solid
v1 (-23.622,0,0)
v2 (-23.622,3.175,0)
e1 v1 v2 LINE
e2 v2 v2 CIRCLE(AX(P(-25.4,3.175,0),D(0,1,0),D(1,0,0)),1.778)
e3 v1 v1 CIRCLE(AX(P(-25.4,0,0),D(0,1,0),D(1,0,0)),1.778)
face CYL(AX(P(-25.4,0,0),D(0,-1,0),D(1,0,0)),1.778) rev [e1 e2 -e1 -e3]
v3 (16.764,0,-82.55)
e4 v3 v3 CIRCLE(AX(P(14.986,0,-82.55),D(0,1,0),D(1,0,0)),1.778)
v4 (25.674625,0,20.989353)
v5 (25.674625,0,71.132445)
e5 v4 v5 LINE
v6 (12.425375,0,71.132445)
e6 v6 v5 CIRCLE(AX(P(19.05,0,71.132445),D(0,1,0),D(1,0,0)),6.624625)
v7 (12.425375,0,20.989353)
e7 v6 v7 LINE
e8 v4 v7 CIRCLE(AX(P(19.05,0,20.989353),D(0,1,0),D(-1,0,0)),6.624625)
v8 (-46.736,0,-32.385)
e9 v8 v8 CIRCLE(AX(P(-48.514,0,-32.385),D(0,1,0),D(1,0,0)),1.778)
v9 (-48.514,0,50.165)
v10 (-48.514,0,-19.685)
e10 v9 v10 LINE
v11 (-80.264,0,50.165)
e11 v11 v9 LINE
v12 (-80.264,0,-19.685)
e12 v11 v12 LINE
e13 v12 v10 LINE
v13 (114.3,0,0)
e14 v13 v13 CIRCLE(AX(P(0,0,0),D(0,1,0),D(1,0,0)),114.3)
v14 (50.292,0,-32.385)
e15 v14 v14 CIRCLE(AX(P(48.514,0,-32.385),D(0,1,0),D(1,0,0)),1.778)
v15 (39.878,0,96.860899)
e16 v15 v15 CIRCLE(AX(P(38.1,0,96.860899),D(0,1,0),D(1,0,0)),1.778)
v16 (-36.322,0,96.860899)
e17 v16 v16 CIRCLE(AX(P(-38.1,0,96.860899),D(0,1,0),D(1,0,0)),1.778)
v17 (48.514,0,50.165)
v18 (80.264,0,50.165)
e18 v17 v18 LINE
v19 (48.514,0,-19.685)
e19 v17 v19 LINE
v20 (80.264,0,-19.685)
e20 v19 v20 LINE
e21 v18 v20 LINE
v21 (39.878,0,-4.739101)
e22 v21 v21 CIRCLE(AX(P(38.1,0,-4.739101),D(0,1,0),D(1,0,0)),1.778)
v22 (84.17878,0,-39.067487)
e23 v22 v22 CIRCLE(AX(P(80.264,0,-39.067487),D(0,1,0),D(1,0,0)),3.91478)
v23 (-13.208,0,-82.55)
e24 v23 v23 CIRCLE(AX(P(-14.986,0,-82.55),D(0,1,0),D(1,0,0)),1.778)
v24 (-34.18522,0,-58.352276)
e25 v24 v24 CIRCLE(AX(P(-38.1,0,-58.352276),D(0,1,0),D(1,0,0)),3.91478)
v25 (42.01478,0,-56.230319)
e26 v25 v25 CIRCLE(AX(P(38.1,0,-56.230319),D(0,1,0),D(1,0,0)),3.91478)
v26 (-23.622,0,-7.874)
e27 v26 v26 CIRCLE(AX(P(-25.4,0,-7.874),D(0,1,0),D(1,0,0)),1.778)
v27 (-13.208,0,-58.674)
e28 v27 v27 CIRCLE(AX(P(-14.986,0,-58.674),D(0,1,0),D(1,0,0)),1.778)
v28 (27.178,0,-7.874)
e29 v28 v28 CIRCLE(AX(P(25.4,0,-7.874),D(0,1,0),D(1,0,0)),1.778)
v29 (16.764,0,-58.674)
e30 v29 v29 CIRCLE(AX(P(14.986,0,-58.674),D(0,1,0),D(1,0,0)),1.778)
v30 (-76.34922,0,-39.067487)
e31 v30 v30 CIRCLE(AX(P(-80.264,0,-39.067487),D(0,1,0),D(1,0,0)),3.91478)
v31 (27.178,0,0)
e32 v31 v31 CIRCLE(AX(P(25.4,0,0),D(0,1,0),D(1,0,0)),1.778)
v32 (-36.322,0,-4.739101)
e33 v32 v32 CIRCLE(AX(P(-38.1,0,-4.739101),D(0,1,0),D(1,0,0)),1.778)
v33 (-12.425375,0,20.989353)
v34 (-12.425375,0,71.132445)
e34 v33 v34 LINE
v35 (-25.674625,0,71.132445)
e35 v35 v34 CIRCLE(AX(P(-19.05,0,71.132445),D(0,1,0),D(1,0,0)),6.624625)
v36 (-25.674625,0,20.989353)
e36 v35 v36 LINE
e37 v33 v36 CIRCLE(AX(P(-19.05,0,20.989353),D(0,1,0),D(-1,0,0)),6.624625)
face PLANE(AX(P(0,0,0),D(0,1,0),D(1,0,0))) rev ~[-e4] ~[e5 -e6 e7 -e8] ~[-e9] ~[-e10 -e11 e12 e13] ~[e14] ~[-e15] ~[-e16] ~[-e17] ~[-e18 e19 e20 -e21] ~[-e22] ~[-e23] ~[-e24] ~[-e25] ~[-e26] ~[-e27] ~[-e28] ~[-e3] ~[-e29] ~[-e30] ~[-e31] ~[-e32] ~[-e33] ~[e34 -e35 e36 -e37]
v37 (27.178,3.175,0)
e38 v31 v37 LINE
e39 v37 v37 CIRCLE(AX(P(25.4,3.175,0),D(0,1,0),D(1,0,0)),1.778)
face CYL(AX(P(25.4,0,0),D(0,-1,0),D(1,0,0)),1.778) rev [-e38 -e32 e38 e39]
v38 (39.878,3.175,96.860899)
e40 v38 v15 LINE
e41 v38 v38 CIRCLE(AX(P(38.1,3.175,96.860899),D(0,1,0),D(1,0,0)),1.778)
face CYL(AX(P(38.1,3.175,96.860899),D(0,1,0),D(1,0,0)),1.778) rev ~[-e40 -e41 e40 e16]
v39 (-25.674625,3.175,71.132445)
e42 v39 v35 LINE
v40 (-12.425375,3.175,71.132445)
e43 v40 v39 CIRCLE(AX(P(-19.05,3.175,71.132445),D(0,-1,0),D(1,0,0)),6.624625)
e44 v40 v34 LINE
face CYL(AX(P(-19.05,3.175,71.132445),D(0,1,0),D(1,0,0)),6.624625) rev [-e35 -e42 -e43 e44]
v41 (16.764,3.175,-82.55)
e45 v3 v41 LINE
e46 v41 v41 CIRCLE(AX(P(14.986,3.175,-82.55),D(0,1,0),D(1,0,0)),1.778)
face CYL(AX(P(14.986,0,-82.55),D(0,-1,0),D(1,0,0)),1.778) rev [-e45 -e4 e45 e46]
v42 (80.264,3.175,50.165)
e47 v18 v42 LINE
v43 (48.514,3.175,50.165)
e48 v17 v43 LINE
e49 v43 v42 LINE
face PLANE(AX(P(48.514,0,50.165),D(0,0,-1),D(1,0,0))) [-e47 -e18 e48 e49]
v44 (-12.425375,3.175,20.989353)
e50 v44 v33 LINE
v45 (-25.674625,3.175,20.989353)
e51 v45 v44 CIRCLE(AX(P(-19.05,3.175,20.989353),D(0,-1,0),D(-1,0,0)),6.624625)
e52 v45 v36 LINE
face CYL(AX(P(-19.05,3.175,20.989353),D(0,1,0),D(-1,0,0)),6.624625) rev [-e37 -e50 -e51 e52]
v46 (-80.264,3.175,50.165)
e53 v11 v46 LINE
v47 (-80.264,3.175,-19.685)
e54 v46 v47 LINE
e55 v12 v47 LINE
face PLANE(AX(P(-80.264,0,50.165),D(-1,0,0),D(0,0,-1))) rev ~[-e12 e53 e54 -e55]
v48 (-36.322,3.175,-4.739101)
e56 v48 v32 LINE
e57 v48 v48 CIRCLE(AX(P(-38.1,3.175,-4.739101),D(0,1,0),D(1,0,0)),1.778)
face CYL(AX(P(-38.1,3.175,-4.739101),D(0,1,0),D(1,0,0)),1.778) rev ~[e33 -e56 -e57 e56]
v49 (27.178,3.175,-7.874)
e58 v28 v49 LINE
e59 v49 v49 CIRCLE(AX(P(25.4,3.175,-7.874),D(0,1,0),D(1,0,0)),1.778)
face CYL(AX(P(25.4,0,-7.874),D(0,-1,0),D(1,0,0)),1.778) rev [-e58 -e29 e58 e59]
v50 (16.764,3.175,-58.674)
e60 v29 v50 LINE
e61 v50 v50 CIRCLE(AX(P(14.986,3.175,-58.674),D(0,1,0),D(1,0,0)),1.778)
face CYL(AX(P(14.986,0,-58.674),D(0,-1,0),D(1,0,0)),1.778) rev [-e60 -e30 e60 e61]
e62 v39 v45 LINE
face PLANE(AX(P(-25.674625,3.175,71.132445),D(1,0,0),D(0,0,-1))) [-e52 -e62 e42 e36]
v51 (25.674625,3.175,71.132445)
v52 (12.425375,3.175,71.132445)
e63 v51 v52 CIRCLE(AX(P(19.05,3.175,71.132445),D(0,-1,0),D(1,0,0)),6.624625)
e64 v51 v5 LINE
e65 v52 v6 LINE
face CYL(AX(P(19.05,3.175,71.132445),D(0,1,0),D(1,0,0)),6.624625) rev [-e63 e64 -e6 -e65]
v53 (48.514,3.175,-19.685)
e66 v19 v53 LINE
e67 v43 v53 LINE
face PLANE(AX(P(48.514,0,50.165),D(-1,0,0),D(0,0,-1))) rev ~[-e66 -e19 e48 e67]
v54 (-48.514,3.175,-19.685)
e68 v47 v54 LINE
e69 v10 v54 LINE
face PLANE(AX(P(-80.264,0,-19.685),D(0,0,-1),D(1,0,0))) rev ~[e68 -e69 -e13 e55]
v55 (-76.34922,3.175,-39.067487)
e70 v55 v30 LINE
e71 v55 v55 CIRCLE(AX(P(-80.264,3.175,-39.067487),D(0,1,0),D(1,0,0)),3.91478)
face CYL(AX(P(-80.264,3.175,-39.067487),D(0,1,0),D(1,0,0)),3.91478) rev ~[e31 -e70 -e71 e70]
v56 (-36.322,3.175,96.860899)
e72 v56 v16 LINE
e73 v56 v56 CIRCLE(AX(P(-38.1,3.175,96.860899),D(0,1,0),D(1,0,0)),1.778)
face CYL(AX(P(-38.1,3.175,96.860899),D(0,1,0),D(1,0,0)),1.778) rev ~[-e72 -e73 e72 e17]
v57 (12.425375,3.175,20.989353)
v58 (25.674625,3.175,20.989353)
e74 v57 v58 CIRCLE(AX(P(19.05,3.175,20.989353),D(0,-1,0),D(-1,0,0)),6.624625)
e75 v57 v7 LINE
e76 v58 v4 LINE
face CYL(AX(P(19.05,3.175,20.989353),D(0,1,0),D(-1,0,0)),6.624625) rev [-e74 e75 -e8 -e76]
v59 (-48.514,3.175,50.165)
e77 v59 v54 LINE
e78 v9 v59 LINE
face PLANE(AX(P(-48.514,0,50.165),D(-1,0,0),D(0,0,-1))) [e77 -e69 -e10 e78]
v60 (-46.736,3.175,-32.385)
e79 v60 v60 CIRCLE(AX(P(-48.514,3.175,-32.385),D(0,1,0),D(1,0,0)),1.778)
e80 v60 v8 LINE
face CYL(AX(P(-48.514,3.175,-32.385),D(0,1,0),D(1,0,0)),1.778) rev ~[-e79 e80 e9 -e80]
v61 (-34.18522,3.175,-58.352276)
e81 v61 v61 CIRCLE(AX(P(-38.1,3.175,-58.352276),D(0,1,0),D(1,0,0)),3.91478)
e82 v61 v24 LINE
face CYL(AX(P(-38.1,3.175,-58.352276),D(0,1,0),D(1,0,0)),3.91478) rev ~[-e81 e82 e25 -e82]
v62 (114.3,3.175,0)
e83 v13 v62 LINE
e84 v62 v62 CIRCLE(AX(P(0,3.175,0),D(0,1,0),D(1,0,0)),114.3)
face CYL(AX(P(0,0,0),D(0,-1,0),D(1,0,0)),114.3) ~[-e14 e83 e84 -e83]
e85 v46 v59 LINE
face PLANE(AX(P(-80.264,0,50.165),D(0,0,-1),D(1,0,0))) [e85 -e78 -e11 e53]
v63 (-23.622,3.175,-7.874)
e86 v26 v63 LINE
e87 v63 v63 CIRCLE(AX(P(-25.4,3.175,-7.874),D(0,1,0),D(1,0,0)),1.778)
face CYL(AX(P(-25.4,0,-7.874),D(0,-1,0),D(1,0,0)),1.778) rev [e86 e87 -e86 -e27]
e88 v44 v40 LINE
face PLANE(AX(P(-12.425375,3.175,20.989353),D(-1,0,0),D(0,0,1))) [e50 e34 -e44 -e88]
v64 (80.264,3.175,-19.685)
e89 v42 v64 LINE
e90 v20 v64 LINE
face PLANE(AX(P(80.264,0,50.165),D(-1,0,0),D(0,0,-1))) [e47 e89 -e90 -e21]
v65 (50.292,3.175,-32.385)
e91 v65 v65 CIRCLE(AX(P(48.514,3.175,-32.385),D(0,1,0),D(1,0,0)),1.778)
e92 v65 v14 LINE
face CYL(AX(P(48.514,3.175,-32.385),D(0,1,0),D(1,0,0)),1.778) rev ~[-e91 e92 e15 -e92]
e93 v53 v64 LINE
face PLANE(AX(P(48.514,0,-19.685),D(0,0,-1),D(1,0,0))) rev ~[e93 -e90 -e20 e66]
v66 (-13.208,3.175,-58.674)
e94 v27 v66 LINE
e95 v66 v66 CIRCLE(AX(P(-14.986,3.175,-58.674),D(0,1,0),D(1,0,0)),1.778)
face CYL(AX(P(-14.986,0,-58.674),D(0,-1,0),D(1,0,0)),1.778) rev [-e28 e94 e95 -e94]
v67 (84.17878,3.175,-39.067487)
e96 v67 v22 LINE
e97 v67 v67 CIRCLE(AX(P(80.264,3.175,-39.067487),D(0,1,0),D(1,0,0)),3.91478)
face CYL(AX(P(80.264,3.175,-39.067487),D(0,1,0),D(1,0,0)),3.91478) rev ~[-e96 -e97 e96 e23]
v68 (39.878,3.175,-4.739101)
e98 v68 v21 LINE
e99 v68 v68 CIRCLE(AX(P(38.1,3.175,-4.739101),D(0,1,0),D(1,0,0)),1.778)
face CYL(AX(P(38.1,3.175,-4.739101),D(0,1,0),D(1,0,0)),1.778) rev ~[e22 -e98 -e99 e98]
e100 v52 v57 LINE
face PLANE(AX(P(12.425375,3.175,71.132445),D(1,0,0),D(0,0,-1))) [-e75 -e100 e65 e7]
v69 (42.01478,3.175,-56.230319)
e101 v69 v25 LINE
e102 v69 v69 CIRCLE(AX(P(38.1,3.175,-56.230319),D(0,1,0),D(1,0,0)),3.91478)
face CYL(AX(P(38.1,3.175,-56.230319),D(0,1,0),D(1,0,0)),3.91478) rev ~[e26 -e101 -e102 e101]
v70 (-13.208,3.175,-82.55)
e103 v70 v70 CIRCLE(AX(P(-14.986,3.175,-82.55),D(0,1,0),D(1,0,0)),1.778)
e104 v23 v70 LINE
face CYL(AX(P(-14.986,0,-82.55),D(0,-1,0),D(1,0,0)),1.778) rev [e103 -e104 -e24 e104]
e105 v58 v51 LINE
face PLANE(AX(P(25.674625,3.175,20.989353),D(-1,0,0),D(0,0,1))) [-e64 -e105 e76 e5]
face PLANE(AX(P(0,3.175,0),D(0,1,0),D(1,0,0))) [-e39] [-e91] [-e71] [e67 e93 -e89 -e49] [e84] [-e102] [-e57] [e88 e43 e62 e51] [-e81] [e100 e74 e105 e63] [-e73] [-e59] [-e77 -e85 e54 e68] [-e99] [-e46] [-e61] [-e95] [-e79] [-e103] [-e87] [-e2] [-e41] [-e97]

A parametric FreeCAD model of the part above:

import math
import FreeCAD as App
import Part
import Sketcher
Q = App.Units.Quantity


def add_polygon(sketch, points):
    """Adds a closed chain of lines whose ends are joined by coincident constraints."""
    first, n = sketch.GeometryCount, len(points)
    for a, b in zip(points, points[1:] + points[:1]):
        sketch.addGeometry(Part.LineSegment(App.Vector(*a, 0), App.Vector(*b, 0)), False)
    for i in range(n):
        sketch.addConstraint(Sketcher.Constraint("Coincident", first + i, 2, first + (i + 1) % n, 1))

doc = App.newDocument("Part")
params = doc.addObject("Spreadsheet::Sheet", "Params")
for row, (alias, value) in enumerate([
    ("sketch1_diameter", "9 in"),
    ("sketch1_diameter2", "0.14 in"),
    ("sketch1_width", "1.25 in"),
    ("sketch1_height", "2.75 in"),
    ("pad1_length", "0.125 in"),
    ("sketch2_diameter", "0.14 in"),
    ("pocket1_length", "1 in"),
], start=1):
    params.set(f"A{row}", alias)
    params.set(f"B{row}", "=" + value)
    params.setAlias(f"B{row}", alias)

body = doc.addObject("PartDesign::Body", "Body")

sketch1 = body.newObject("Sketcher::SketchObject", "Sketch")
sketch1.AttachmentSupport = (doc.getObject("XZ_Plane"), [""])
sketch1.MapMode = "FlatFace"
sketch1.addGeometry(Part.Circle(App.Vector(0, 0, 0), App.Vector(0, 0, 1), 114.3), False)
add_polygon(sketch1, [(-48.5, 50.2), (-80.3, 50.2), (-80.3, -19.7), (-48.5, -19.7)])
sketch1.addGeometry(Part.Circle(App.Vector(-25.4, 0, 0), App.Vector(0, 0, 1), 1.8), False)
sketch1.addGeometry(Part.Circle(App.Vector(-25.4, -7.9, 0), App.Vector(0, 0, 1), 1.8), False)
sketch1.addGeometry(Part.Circle(App.Vector(25.4, 0, 0), App.Vector(0, 0, 1), 1.8), False)
sketch1.addGeometry(Part.Circle(App.Vector(25.4, -7.9, 0), App.Vector(0, 0, 1), 1.8), False)
add_polygon(sketch1, [(80.3, 50.2), (48.5, 50.2), (48.5, -19.7), (80.3, -19.7)])
sketch1.addGeometry(Part.Circle(App.Vector(-15, -58.7, 0), App.Vector(0, 0, 1), 1.8), False)
sketch1.addGeometry(Part.Circle(App.Vector(-15, -82.5, 0), App.Vector(0, 0, 1), 1.8), False)
sketch1.addGeometry(Part.Circle(App.Vector(15, -58.7, 0), App.Vector(0, 0, 1), 1.8), False)
sketch1.addGeometry(Part.Circle(App.Vector(15, -82.5, 0), App.Vector(0, 0, 1), 1.8), False)
sketch1.addConstraint([
    Sketcher.Constraint("Horizontal", 1),
    Sketcher.Constraint("Vertical", 2),
    Sketcher.Constraint("Horizontal", 3),
    Sketcher.Constraint("Vertical", 4),
    Sketcher.Constraint("Horizontal", 9),
    Sketcher.Constraint("Vertical", 10),
    Sketcher.Constraint("Horizontal", 11),
    Sketcher.Constraint("Vertical", 12),
    Sketcher.Constraint("Coincident", 0, 3, -1, 1),
    Sketcher.Constraint("Equal", 5, 6),
    Sketcher.Constraint("Equal", 6, 7),
    Sketcher.Constraint("Equal", 7, 8),
    Sketcher.Constraint("Equal", 8, 13),
    Sketcher.Constraint("Equal", 13, 14),
    Sketcher.Constraint("Equal", 14, 15),
    Sketcher.Constraint("Equal", 15, 16),
    Sketcher.Constraint("Symmetric", 5, 3, 7, 3, -1, 1),
    Sketcher.Constraint("Symmetric", 6, 3, 8, 3, -2),
    Sketcher.Constraint("Symmetric", 13, 3, 15, 3, -2),
    Sketcher.Constraint("Symmetric", 14, 3, 16, 3, -2),
    Sketcher.Constraint("Symmetric", 4, 2, 9, 2, -2),
    Sketcher.Constraint("Symmetric", 2, 2, 11, 2, -2),
    Sketcher.Constraint("PointOnObject", 5, 3, -1),
    Sketcher.Constraint("Vertical", 5, 3, 6, 3),
    Sketcher.Constraint("Vertical", 13, 3, 14, 3),
    Sketcher.Constraint("Diameter", 0, Q("9 in")),
    Sketcher.Constraint("Diameter", 5, Q("0.14 in")),
    Sketcher.Constraint("DistanceX", 5, 3, -1, 1, Q("1 in")),
    Sketcher.Constraint("DistanceY", 13, 3, 6, 3, Q("2 in")),
    Sketcher.Constraint("DistanceX", 1, 2, 1, 1, Q("1.25 in")),
    Sketcher.Constraint("DistanceY", 2, 2, 2, 1, Q("2.75 in")),
    Sketcher.Constraint("DistanceY", 6, 3, -1, 1, Q("0.31 in")),
    Sketcher.Constraint("DistanceX", 13, 3, -1, 1, Q("0.59 in")),
    Sketcher.Constraint("DistanceY", 14, 3, -1, 1, Q("3.25 in")),
    Sketcher.Constraint("DistanceX", 1, 2, -1, 1, Q("3.16 in")),
    Sketcher.Constraint("DistanceY", -1, 1, 1, 2, Q("1.975 in")),
])
sketch1.setExpression("Constraints[33]", "Params.sketch1_diameter")
sketch1.setExpression("Constraints[34]", "Params.sketch1_diameter2")
sketch1.setExpression("Constraints[37]", "Params.sketch1_width")
sketch1.setExpression("Constraints[38]", "Params.sketch1_height")
pad1 = body.newObject("PartDesign::Pad", "Pad")
pad1.Profile = sketch1
pad1.setExpression("Length", "Params.pad1_length")
pad1.Reversed = True

sketch2 = body.newObject("Sketcher::SketchObject", "Sketch001")
sketch2.AttachmentSupport = (doc.getObject("XZ_Plane"), [""])
sketch2.MapMode = "FlatFace"
sketch2.AttachmentOffset = App.Placement(App.Vector(0, 0, -0.125 * 25.4), App.Rotation())
sketch2.addGeometry([
    Part.Circle(App.Vector(-48.5, -32.4, 0), App.Vector(0, 0, 1), 1.8),
    Part.Circle(App.Vector(48.5, -32.4, 0), App.Vector(0, 0, 1), 1.8),
    Part.Circle(App.Vector(38.1, -4.7, 0), App.Vector(0, 0, 1), 1.8),
    Part.Circle(App.Vector(-38.1, -4.7, 0), App.Vector(0, 0, 1), 1.8),
    Part.Circle(App.Vector(-38.1, 96.9, 0), App.Vector(0, 0, 1), 1.8),
    Part.Circle(App.Vector(38.1, 96.9, 0), App.Vector(0, 0, 1), 1.8),
    Part.Circle(App.Vector(-38.1, -58.4, 0), App.Vector(0, 0, 1), 3.9),
    Part.Circle(App.Vector(38.1, -56.2, 0), App.Vector(0, 0, 1), 3.9),
    Part.Circle(App.Vector(80.3, -39.1, 0), App.Vector(0, 0, 1), 3.9),
    Part.Circle(App.Vector(-80.3, -39.1, 0), App.Vector(0, 0, 1), 3.9),
    Part.LineSegment(App.Vector(-25.7, 21, 0), App.Vector(-25.7, 71.1, 0)),
    Part.ArcOfCircle(Part.Circle(App.Vector(-19.1, 71.1, 0), App.Vector(0, 0, 1), 6.6), math.radians(0), math.radians(180)),
    Part.LineSegment(App.Vector(-12.4, 71.1, 0), App.Vector(-12.4, 21, 0)),
    Part.ArcOfCircle(Part.Circle(App.Vector(-19.1, 21, 0), App.Vector(0, 0, 1), 6.6), math.radians(180), math.radians(360)),
    Part.LineSegment(App.Vector(12.4, 21, 0), App.Vector(12.4, 71.1, 0)),
    Part.ArcOfCircle(Part.Circle(App.Vector(19.1, 71.1, 0), App.Vector(0, 0, 1), 6.6), math.radians(0), math.radians(180)),
    Part.LineSegment(App.Vector(25.7, 71.1, 0), App.Vector(25.7, 21, 0)),
    Part.ArcOfCircle(Part.Circle(App.Vector(19.1, 21, 0), App.Vector(0, 0, 1), 6.6), math.radians(180), math.radians(360)),
], False)
sketch2.addConstraint([
    Sketcher.Constraint("Tangent", 10, 2, 11, 2),
    Sketcher.Constraint("Tangent", 11, 1, 12, 1),
    Sketcher.Constraint("Tangent", 12, 2, 13, 2),
    Sketcher.Constraint("Tangent", 13, 1, 10, 1),
    Sketcher.Constraint("Tangent", 14, 2, 15, 2),
    Sketcher.Constraint("Tangent", 15, 1, 16, 1),
    Sketcher.Constraint("Tangent", 16, 2, 17, 2),
    Sketcher.Constraint("Tangent", 17, 1, 14, 1),
    Sketcher.Constraint("Vertical", 10),
    Sketcher.Constraint("Vertical", 12),
    Sketcher.Constraint("Vertical", 14),
    Sketcher.Constraint("Vertical", 16),
    Sketcher.Constraint("Equal", 0, 1),
    Sketcher.Constraint("Equal", 1, 2),
    Sketcher.Constraint("Equal", 2, 3),
    Sketcher.Constraint("Equal", 3, 4),
    Sketcher.Constraint("Equal", 4, 5),
    Sketcher.Constraint("Equal", 6, 7),
    Sketcher.Constraint("Equal", 7, 8),
    Sketcher.Constraint("Equal", 8, 9),
    Sketcher.Constraint("Equal", 13, 15),
    Sketcher.Constraint("Symmetric", 0, 3, 1, 3, -2),
    Sketcher.Constraint("Symmetric", 2, 3, 3, 3, -2),
    Sketcher.Constraint("Symmetric", 4, 3, 5, 3, -2),
    Sketcher.Constraint("Symmetric", 8, 3, 9, 3, -2),
    Sketcher.Constraint("Symmetric", 11, 3, 15, 3, -2),
    Sketcher.Constraint("Horizontal", 13, 3, 17, 3),
    Sketcher.Constraint("Vertical", 3, 3, 4, 3),
    Sketcher.Constraint("Vertical", 4, 3, 6, 3),
    Sketcher.Constraint("Vertical", 5, 3, 7, 3),
    Sketcher.Constraint("Diameter", 0, Q("0.14 in")),
    Sketcher.Constraint("DistanceX", 3, 3, 2, 3, Q("3 in")),
    Sketcher.Constraint("DistanceY", 3, 3, 4, 3, Q("4 in")),
    Sketcher.Constraint("DistanceX", 11, 3, 15, 3, Q("1.5 in")),
    Sketcher.Constraint("DistanceX", 0, 3, -1, 1, Q("1.91 in")),
    Sketcher.Constraint("DistanceX", -1, 1, 8, 3, Q("3.16 in")),
    Sketcher.Constraint("Diameter", 6, Q("7.82956 mm")),
    Sketcher.Constraint("DistanceY", 0, 3, -1, 1, Q("1.275 in")),
    Sketcher.Constraint("Radius", 11, Q("6.624625 mm")),
    Sketcher.Constraint("DistanceY", 10, 1, 10, 2, Q("50.143092 mm")),
    Sketcher.Constraint("DistanceY", 2, 3, -1, 1, Q("4.739101 mm")),
    Sketcher.Constraint("DistanceY", 7, 3, -1, 1, Q("56.230319 mm")),
    Sketcher.Constraint("DistanceY", 6, 3, 8, 3, Q("19.284788 mm")),
    Sketcher.Constraint("DistanceY", 6, 3, -1, 1, Q("58.352276 mm")),
    Sketcher.Constraint("DistanceY", -1, 1, 11, 3, Q("71.132445 mm")),
])
sketch2.setExpression("Constraints[30]", "Params.sketch2_diameter")
pocket1 = body.newObject("PartDesign::Pocket", "Pocket")
pocket1.Profile = sketch2
pocket1.setExpression("Length", "Params.pocket1_length")
pocket1.Reversed = True

doc.recompute()
